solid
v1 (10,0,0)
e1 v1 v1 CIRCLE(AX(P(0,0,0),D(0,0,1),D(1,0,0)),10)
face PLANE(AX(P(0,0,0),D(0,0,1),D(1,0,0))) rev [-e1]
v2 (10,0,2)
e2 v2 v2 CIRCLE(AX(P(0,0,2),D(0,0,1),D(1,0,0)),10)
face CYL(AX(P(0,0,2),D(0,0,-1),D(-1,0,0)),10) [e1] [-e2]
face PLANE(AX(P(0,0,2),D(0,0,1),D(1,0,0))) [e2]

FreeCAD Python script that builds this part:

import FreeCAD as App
import Part
import Sketcher
from FreeCAD import Vector
Q = App.Units.Quantity

doc = App.newDocument("Part")
params = doc.addObject("Spreadsheet::Sheet", "Params")
for row, (alias, value) in enumerate([
    ("sketch1_diameter", "20 mm"),
    ("pad1_length", "2 mm"),
], start=1):
    params.set(f"A{row}", alias)
    params.set(f"B{row}", "=" + value)
    params.setAlias(f"B{row}", alias)

body = doc.addObject("PartDesign::Body", "Body")

# Sketch on XY plane
sketch1 = body.newObject("Sketcher::SketchObject", "Sketch")
sketch1.AttachmentSupport = (doc.getObject("XY_Plane"), [""])
sketch1.MapMode = "FlatFace"
sketch1.addGeometry(Part.Circle(Vector(0, 0, 0), Vector(0, 0, 1), 10), False)
sketch1.addConstraint([
    Sketcher.Constraint("Coincident", 0, 3, -1, 1),
    Sketcher.Constraint("Diameter", 0, Q("20 mm")),
])
sketch1.setExpression("Constraints[1]", "Params.sketch1_diameter")
pad1 = body.newObject("PartDesign::Pad", "Pad")
pad1.Profile = sketch1
pad1.setExpression("Length", "Params.pad1_length")

doc.recompute()
